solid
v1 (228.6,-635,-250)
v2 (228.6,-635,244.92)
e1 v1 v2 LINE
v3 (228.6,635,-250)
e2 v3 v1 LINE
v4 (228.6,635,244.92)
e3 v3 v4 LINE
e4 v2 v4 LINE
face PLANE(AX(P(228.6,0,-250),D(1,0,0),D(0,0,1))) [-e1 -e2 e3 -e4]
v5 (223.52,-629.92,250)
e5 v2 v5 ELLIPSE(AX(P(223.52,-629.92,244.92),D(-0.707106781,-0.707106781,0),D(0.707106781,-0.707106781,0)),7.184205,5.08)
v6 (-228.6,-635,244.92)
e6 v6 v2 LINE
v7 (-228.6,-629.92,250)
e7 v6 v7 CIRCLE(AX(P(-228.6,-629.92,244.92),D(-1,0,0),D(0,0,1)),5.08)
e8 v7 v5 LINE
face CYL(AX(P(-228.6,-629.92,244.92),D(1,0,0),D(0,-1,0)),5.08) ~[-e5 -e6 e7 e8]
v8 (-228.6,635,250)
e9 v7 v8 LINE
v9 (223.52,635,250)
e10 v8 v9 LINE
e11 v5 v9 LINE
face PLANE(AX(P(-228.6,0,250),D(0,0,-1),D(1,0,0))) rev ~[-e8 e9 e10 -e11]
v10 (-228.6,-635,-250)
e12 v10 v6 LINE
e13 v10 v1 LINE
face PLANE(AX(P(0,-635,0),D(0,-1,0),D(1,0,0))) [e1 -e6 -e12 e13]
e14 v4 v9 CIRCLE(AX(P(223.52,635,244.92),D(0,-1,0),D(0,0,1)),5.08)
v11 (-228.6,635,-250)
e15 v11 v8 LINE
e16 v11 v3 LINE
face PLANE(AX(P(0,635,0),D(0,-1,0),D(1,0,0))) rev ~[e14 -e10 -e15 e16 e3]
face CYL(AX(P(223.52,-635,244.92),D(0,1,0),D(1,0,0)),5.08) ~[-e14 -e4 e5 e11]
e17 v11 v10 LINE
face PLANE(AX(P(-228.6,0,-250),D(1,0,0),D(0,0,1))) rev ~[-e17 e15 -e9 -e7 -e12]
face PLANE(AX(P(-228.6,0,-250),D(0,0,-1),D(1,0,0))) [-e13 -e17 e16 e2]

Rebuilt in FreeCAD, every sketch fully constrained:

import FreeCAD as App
import Part
import Sketcher
from FreeCAD import Vector
Q = App.Units.Quantity


def edges_at(feature, points):
    """Names of the edges that pass closest to the given points."""
    edges = feature.Shape.Edges
    near = lambda p: min(range(len(edges)), key=lambda i: edges[i].distToShape(Part.Vertex(*p))[0])
    return sorted({f"Edge{near(p) + 1}" for p in points})

doc = App.newDocument("Part")
body = doc.addObject("PartDesign::Body", "Body")

# Sketch on XZ plane
sketch1 = doc.addObject("Sketcher::SketchObject", "Sketch")
body.addObject(sketch1)
sketch1.AttachmentSupport = (doc.XZ_Plane, [""])
sketch1.MapMode = "FlatFace"
sketch1.addGeometry([
    Part.LineSegment(Vector(-228.6, 250, 0), Vector(-228.6, -250, 0)),
    Part.LineSegment(Vector(-228.6, -250, 0), Vector(228.6, -250, 0)),
    Part.LineSegment(Vector(228.6, -250, 0), Vector(228.6, 250, 0)),
    Part.LineSegment(Vector(228.6, 250, 0), Vector(-228.6, 250, 0)),
], False)
sketch1.addConstraint([
    Sketcher.Constraint("Coincident", 0, 2, 1, 1),
    Sketcher.Constraint("Coincident", 1, 2, 2, 1),
    Sketcher.Constraint("Coincident", 2, 2, 3, 1),
    Sketcher.Constraint("Coincident", 3, 2, 0, 1),
    Sketcher.Constraint("Vertical", 0),
    Sketcher.Constraint("Horizontal", 1),
    Sketcher.Constraint("Vertical", 2),
    Sketcher.Constraint("Horizontal", 3),
    Sketcher.Constraint("Symmetric", 0, 2, 2, 2, -1, 1),
    Sketcher.Constraint("DistanceX", 1, 1, 1, 2, Q("18 in")),
    Sketcher.Constraint("DistanceY", 0, 2, 0, 1, Q("500 mm")),
])
pad1 = doc.addObject("PartDesign::Pad", "Pad")
body.addObject(pad1)
pad1.Profile = sketch1
pad1.Length = Q("50 in")
pad1.Midplane = True
doc.recompute()

fillet = doc.addObject("PartDesign::Fillet", "Fillet")
body.addObject(fillet)
fillet.Base = (pad1, edges_at(pad1, [(0, -635, 250), (228.6, 0, 250)]))
fillet.Radius = Q("0.2 in")

doc.recompute()
